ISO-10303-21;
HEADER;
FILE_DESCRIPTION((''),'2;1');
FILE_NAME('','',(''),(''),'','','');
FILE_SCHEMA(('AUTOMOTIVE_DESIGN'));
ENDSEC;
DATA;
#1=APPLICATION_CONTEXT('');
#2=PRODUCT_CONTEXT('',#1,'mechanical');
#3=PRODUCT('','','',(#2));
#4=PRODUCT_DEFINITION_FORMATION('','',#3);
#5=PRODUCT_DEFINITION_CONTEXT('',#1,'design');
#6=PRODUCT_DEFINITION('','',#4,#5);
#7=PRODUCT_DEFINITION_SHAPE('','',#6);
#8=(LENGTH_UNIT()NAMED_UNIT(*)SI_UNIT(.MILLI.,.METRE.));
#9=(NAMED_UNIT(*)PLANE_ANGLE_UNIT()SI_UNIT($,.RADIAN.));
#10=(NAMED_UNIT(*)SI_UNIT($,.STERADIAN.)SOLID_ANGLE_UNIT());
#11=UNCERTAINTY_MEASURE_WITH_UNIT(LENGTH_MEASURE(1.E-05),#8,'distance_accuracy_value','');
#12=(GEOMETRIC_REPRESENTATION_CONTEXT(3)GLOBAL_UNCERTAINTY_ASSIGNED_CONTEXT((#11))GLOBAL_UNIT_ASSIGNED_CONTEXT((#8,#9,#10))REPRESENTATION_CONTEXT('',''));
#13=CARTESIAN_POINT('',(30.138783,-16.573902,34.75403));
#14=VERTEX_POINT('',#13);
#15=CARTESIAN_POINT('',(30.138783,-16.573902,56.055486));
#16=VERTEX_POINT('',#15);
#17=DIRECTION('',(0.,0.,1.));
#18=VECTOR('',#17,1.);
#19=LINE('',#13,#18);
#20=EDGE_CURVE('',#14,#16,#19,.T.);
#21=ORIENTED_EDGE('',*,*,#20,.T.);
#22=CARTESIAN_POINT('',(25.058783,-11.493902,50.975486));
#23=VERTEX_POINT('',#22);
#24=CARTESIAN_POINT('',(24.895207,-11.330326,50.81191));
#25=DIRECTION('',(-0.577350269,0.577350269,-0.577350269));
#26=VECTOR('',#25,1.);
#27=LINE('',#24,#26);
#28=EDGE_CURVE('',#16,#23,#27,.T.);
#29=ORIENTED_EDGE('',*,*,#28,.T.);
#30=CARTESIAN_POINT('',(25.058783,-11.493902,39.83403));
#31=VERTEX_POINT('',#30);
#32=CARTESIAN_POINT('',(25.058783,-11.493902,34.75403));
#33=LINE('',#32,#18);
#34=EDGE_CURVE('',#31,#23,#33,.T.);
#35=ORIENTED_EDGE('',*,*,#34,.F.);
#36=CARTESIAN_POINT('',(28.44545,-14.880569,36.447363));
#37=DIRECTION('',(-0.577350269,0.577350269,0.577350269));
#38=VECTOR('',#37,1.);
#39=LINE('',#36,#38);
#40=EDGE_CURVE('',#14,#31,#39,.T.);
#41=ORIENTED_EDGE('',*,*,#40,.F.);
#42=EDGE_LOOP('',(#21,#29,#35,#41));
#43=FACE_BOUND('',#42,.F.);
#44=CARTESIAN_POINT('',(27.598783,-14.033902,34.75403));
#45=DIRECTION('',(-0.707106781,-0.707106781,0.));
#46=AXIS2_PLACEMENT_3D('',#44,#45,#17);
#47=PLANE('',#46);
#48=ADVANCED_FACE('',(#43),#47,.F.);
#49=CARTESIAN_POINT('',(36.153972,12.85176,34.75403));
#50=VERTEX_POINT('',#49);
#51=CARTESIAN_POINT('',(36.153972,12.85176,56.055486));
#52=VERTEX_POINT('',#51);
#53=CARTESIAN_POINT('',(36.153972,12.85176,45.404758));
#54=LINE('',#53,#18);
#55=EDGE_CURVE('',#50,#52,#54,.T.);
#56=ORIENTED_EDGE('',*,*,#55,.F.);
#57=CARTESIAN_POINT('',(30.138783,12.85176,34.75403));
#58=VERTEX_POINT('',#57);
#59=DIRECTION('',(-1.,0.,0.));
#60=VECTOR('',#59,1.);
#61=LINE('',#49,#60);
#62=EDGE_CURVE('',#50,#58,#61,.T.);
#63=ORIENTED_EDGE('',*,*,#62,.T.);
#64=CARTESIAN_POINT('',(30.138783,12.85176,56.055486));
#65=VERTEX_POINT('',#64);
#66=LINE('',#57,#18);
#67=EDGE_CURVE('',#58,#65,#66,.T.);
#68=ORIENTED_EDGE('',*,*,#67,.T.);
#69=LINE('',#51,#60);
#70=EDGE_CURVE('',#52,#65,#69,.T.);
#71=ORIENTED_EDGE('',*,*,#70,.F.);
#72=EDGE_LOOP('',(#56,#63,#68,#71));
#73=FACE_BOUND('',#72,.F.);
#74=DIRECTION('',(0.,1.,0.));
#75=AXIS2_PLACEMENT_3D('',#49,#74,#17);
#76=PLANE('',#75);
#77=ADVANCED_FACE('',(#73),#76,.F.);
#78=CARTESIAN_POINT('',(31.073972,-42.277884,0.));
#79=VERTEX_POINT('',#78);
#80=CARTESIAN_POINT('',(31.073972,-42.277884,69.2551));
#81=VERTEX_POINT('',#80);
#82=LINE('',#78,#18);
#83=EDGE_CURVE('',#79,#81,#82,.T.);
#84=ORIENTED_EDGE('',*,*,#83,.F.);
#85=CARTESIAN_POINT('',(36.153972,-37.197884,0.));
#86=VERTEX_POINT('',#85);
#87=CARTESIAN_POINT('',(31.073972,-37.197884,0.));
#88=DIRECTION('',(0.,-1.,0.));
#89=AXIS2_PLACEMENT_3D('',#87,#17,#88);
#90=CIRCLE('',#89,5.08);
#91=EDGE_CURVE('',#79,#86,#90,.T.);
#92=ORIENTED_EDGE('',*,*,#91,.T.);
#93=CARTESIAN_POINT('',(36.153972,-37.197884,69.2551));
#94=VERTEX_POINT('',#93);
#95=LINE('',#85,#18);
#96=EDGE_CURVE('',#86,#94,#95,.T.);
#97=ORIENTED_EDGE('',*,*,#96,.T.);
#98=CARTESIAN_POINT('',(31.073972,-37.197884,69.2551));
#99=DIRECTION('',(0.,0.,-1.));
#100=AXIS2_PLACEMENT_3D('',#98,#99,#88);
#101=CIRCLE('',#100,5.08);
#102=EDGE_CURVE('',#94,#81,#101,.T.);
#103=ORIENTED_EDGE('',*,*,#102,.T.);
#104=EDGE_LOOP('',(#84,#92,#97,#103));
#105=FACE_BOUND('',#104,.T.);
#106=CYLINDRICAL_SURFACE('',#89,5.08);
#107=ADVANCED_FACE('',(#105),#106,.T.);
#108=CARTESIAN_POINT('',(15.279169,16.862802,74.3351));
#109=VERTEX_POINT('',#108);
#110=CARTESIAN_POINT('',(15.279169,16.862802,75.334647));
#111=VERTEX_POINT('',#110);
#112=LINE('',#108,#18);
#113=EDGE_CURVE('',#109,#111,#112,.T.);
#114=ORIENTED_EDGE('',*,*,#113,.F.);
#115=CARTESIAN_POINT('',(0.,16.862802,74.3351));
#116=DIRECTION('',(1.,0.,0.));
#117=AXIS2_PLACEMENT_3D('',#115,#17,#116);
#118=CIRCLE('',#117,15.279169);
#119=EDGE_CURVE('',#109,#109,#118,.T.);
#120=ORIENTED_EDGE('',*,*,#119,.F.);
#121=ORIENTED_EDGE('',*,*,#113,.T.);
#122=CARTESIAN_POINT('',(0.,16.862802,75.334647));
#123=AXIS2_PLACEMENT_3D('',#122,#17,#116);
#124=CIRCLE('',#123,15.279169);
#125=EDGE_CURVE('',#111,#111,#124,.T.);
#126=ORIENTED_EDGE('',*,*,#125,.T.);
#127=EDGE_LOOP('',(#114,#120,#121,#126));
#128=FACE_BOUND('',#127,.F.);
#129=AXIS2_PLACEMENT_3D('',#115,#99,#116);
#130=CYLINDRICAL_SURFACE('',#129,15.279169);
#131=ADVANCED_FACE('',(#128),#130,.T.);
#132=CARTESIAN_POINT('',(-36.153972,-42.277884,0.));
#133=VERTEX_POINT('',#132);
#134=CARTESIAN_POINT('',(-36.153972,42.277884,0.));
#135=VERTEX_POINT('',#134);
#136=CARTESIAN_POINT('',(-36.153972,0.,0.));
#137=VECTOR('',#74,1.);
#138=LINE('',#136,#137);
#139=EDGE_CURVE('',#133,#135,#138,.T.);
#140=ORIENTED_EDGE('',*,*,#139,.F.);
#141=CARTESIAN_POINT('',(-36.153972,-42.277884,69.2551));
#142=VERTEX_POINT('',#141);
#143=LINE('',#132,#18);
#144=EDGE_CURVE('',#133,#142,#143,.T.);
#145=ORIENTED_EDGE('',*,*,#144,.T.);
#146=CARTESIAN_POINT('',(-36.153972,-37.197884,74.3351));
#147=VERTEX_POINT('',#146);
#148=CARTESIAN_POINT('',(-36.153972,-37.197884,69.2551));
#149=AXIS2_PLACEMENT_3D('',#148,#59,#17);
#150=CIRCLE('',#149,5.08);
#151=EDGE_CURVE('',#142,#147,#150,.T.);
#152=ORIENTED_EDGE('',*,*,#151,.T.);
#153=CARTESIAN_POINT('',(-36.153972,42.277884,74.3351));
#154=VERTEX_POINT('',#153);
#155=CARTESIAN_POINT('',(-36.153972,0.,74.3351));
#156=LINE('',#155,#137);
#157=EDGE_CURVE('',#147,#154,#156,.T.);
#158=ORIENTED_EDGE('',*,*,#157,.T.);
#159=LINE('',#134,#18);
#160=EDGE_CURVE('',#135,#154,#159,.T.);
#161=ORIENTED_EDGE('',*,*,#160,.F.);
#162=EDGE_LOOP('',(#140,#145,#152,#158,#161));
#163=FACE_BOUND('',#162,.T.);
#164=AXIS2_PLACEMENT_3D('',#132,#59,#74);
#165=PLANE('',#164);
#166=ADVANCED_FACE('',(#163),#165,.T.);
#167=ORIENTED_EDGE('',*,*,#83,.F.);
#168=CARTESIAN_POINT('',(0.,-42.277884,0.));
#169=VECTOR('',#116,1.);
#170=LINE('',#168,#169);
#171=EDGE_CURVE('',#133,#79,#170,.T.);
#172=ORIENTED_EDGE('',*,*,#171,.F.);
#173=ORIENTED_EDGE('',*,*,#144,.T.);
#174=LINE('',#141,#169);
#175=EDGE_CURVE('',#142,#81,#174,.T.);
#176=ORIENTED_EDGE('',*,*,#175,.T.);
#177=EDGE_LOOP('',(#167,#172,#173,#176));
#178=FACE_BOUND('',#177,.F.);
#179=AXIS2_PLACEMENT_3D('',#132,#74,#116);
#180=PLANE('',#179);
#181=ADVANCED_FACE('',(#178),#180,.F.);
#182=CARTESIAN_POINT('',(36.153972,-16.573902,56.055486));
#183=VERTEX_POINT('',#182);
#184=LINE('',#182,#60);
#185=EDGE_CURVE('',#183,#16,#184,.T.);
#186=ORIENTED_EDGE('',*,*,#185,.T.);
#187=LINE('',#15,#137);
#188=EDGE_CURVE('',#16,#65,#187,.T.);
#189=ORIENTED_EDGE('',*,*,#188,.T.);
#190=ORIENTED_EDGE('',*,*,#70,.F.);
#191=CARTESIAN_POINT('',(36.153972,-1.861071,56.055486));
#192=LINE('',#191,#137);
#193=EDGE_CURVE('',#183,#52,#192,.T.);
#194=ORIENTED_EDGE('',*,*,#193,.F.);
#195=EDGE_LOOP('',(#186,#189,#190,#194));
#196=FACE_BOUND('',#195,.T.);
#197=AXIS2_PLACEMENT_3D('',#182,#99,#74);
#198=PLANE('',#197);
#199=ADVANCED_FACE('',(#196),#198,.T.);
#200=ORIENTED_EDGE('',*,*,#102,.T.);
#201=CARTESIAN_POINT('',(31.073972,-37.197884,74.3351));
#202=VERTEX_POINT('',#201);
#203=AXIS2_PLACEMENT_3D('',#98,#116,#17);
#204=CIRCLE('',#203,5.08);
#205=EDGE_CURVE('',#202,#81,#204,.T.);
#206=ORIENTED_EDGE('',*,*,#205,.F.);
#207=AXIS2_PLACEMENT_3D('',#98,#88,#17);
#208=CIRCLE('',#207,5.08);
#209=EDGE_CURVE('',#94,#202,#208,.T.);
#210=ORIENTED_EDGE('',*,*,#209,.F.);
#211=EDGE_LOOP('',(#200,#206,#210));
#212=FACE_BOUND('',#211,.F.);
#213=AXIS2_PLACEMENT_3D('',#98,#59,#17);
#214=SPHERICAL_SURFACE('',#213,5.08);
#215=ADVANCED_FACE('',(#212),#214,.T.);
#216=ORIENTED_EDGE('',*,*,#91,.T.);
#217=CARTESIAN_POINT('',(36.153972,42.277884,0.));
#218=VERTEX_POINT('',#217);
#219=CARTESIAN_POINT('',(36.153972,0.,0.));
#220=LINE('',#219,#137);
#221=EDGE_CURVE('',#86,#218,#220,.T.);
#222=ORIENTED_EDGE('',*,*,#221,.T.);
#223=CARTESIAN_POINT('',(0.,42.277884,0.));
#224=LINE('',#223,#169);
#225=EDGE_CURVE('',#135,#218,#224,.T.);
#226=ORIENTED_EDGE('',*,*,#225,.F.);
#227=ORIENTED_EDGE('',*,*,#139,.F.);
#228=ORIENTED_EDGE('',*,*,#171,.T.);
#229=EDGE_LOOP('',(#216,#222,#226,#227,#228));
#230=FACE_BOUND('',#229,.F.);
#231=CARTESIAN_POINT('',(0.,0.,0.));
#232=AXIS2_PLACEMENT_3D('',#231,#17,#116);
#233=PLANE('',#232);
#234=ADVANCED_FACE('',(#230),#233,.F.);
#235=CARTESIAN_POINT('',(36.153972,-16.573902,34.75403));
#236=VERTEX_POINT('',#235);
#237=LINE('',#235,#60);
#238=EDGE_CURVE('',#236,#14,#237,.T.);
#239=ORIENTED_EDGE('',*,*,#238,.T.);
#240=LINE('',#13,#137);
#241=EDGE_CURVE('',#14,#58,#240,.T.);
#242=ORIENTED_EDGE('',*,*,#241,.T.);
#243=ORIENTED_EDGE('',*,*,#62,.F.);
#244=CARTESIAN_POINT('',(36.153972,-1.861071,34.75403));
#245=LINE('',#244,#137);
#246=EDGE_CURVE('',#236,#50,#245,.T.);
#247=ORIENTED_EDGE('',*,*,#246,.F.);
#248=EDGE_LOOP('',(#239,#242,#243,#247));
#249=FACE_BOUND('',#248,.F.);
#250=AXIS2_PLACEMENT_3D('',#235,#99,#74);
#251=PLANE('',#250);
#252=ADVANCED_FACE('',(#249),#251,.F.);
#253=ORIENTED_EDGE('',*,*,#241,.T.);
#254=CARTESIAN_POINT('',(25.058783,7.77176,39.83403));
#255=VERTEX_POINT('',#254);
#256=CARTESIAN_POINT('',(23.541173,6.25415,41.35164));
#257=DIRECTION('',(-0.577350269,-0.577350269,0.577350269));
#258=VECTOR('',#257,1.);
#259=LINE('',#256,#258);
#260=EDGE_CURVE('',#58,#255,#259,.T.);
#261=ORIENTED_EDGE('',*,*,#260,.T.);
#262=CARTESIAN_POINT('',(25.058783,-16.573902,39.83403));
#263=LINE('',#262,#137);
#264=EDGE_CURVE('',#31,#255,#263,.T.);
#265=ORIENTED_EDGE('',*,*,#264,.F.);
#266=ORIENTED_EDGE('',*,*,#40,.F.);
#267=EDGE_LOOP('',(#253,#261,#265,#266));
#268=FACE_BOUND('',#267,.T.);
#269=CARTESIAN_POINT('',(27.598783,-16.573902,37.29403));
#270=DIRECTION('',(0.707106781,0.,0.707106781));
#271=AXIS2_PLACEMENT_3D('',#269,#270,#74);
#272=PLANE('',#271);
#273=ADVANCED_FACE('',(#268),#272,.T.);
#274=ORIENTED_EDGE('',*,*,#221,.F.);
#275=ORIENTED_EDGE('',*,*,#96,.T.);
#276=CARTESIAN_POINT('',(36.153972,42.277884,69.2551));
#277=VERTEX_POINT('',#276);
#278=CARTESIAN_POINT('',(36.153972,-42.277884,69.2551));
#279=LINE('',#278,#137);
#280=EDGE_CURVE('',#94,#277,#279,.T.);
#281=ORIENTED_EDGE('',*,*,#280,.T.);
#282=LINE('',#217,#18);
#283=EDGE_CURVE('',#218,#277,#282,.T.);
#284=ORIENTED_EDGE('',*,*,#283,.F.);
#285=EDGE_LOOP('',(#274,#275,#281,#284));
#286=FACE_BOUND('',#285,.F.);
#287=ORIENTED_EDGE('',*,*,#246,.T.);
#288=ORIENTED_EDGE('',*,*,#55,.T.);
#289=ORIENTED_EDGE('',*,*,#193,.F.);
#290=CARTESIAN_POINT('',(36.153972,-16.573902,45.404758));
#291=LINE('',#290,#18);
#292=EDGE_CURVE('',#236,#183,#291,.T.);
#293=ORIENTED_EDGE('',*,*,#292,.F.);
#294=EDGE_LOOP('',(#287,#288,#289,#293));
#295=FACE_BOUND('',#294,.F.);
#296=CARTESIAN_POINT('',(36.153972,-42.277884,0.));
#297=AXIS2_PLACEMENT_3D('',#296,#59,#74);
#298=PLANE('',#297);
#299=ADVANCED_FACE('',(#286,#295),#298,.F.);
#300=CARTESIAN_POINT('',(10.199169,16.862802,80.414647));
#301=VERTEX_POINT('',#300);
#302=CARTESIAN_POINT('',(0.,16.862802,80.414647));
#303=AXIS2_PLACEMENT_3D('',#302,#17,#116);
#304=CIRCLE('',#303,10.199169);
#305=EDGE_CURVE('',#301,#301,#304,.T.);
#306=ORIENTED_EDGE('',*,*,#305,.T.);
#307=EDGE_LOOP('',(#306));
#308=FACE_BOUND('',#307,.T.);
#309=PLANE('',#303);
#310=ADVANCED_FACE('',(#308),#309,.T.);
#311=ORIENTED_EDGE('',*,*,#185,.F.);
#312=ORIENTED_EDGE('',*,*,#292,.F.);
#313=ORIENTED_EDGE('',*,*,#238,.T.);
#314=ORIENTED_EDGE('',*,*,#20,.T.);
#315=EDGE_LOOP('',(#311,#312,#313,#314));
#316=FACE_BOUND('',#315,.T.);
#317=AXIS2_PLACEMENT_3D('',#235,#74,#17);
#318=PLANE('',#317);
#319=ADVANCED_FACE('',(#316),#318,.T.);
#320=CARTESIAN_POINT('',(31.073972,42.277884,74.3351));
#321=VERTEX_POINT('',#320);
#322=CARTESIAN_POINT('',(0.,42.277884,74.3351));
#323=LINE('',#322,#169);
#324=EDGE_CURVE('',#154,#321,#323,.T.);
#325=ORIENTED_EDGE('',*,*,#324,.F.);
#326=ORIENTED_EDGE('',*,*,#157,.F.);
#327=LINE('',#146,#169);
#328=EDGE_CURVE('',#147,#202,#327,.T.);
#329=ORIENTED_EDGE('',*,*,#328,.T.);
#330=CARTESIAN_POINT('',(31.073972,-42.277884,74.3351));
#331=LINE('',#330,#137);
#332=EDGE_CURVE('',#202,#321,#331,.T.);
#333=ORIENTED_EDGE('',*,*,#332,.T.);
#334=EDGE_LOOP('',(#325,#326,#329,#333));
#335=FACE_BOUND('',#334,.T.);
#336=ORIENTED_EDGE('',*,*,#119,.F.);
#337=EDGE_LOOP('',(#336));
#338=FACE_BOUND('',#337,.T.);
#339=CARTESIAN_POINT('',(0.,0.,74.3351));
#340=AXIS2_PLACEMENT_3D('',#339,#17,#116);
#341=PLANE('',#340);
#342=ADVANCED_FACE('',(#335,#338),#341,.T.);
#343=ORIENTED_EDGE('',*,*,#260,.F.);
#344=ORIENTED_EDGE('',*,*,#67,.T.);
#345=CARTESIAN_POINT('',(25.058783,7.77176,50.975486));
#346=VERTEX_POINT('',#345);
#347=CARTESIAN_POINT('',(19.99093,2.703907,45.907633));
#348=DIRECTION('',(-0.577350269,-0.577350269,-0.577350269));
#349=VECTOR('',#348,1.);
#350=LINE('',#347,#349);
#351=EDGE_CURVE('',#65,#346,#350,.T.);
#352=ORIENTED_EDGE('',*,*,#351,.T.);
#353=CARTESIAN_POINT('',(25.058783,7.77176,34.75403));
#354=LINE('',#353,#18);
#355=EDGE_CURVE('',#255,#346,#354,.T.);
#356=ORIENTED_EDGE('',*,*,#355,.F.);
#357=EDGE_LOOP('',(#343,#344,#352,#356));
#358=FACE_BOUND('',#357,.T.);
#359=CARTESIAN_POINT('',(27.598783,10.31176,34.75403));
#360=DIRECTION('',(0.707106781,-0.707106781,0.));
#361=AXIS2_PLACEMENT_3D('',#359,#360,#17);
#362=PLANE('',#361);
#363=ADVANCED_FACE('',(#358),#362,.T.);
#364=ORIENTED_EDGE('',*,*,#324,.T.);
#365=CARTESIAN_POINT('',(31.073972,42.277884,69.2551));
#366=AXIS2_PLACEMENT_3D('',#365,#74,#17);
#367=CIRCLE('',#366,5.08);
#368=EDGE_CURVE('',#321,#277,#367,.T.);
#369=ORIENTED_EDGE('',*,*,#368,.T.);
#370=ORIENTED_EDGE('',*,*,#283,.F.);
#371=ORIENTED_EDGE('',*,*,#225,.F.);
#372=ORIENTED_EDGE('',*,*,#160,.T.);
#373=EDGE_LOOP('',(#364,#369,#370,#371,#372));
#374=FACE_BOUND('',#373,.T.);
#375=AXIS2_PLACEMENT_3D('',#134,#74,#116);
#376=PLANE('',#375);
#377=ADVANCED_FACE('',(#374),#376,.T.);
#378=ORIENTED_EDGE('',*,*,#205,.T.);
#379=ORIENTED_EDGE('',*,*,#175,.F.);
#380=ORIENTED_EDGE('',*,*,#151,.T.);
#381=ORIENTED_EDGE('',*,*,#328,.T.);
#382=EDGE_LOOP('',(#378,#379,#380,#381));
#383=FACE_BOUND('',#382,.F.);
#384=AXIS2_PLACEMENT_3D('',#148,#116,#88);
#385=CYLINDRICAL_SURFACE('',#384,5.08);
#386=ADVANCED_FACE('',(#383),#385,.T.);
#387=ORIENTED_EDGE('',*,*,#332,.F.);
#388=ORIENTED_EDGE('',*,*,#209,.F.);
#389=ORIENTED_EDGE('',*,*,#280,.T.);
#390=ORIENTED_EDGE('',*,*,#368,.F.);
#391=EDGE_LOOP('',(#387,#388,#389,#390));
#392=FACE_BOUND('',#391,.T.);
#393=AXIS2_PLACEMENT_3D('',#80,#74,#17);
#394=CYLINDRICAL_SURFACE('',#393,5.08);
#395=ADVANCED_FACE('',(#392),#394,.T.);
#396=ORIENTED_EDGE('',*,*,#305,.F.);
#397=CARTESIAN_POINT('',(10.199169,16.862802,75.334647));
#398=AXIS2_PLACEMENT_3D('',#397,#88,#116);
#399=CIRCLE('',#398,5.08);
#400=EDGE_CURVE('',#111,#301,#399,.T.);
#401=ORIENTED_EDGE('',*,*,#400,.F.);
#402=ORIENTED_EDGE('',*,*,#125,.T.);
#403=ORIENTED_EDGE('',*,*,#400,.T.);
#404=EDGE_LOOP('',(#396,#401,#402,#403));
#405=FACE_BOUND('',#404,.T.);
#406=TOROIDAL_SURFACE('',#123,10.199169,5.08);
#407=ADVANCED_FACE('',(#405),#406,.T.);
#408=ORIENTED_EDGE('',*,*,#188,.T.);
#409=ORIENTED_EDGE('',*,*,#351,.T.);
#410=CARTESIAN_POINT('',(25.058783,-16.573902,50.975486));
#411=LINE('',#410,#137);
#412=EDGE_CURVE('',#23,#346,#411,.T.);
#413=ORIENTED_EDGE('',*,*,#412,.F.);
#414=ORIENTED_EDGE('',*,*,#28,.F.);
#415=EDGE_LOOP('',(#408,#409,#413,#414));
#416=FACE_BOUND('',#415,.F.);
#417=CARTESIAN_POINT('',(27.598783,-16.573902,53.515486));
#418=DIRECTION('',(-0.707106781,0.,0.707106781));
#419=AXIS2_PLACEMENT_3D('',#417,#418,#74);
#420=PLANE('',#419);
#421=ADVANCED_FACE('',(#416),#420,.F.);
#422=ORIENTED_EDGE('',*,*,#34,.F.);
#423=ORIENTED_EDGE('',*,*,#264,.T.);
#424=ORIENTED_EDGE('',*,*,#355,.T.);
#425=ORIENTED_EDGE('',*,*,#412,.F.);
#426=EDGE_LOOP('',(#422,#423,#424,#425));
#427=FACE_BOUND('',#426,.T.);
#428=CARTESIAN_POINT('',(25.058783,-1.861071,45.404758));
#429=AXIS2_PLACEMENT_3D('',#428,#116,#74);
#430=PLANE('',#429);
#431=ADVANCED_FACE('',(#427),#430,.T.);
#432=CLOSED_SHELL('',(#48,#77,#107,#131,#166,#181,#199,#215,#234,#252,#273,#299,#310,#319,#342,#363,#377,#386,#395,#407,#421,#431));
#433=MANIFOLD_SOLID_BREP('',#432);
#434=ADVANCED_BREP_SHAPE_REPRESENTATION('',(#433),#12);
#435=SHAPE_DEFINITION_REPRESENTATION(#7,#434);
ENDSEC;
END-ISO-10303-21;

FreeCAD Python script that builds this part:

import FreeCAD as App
import Part
import Sketcher
Q = App.Units.Quantity


def edges_at(feature, points):
    """Names of the edges that pass closest to the given points."""
    edges = feature.Shape.Edges
    near = lambda p: min(range(len(edges)), key=lambda i: edges[i].distToShape(Part.Vertex(*p))[0])
    return sorted({f"Edge{near(p) + 1}" for p in points})

doc = App.newDocument("Part")
body = doc.addObject("PartDesign::Body", "Body")

sketch1 = body.newObject("Sketcher::SketchObject", "Sketch")
sketch1.AttachmentSupport = (doc.getObject("XY_Plane"), [""])
sketch1.MapMode = "FlatFace"
sketch1.addGeometry([
    Part.LineSegment(App.Vector(-36, 42, 0), App.Vector(-36, -42, 0)),
    Part.LineSegment(App.Vector(-36, -42, 0), App.Vector(36, -42, 0)),
    Part.LineSegment(App.Vector(36, -42, 0), App.Vector(36, 42, 0)),
    Part.LineSegment(App.Vector(36, 42, 0), App.Vector(-36, 42, 0)),
], False)
sketch1.addConstraint([
    Sketcher.Constraint("Coincident", 0, 2, 1, 1),
    Sketcher.Constraint("Coincident", 1, 2, 2, 1),
    Sketcher.Constraint("Coincident", 2, 2, 3, 1),
    Sketcher.Constraint("Coincident", 3, 2, 0, 1),
    Sketcher.Constraint("Vertical", 0),
    Sketcher.Constraint("Horizontal", 1),
    Sketcher.Constraint("Vertical", 2),
    Sketcher.Constraint("Horizontal", 3),
    Sketcher.Constraint("Symmetric", 0, 2, 2, 2, -1, 1),
    Sketcher.Constraint("DistanceY", 0, 2, 0, 1, 84.555768),
    Sketcher.Constraint("DistanceX", 1, 1, 1, 2, 72.307944),
])
pad1 = body.newObject("PartDesign::Pad", "Pad")
pad1.Profile = sketch1
pad1.Length = 74.3351

sketch2 = body.newObject("Sketcher::SketchObject", "Sketch001")
sketch2.AttachmentSupport = (doc.getObject("XY_Plane"), [""])
sketch2.MapMode = "FlatFace"
sketch2.AttachmentOffset = App.Placement(App.Vector(0, 0, 74.3351), App.Rotation())
sketch2.addGeometry(Part.Circle(App.Vector(0, 17, 0), App.Vector(0, 0, 1), 15), False)
sketch2.addConstraint([
    Sketcher.Constraint("PointOnObject", 0, 3, -2),
    Sketcher.Constraint("Diameter", 0, 30.558338),
    Sketcher.Constraint("DistanceY", -1, 1, 0, 3, 16.862802),
])
pad2 = body.newObject("PartDesign::Pad", "Pad001")
pad2.Profile = sketch2
pad2.Length = 6.079547
doc.recompute()

fillet = body.newObject("PartDesign::Fillet", "Fillet")
fillet.Base = (pad2, edges_at(pad2, [
    (-15.279, 16.863, 80.415),
    (0, -42.278, 74.335),
    (36.154, 0, 74.335),
    (36.154, -42.278, 37.168),
]))
fillet.Radius = Q("0.2 in")

sketch3 = body.newObject("Sketcher::SketchObject", "Sketch002")
sketch3.AttachmentSupport = (doc.getObject("YZ_Plane"), [""])
sketch3.MapMode = "FlatFace"
sketch3.AttachmentOffset = App.Placement(App.Vector(0, 0, 36.153972), App.Rotation())
sketch3.addGeometry([
    Part.LineSegment(App.Vector(-17, 56, 0), App.Vector(-17, 35, 0)),
    Part.LineSegment(App.Vector(-17, 35, 0), App.Vector(13, 35, 0)),
    Part.LineSegment(App.Vector(13, 35, 0), App.Vector(13, 56, 0)),
    Part.LineSegment(App.Vector(13, 56, 0), App.Vector(-17, 56, 0)),
], False)
sketch3.addConstraint([
    Sketcher.Constraint("Coincident", 0, 2, 1, 1),
    Sketcher.Constraint("Coincident", 1, 2, 2, 1),
    Sketcher.Constraint("Coincident", 2, 2, 3, 1),
    Sketcher.Constraint("Coincident", 3, 2, 0, 1),
    Sketcher.Constraint("Vertical", 0),
    Sketcher.Constraint("Horizontal", 1),
    Sketcher.Constraint("Vertical", 2),
    Sketcher.Constraint("Horizontal", 3),
    Sketcher.Constraint("DistanceX", 1, 1, 1, 2, 29.425662),
    Sketcher.Constraint("DistanceY", 0, 2, 0, 1, 21.301456),
    Sketcher.Constraint("DistanceY", -1, 1, 0, 2, 34.75403),
    Sketcher.Constraint("DistanceX", -1, 1, 1, 2, 12.85176),
])
pocket1 = body.newObject("PartDesign::Pocket", "Pocket")
pocket1.Profile = sketch3
pocket1.Length = 11.095189
doc.recompute()

chamfer = body.newObject("PartDesign::Chamfer", "Chamfer")
chamfer.Base = (pocket1, edges_at(pocket1, [
    (25.059, -1.861, 56.055),
    (25.059, -16.574, 45.405),
    (25.059, -1.861, 34.754),
    (25.059, 12.852, 45.405),
]))
chamfer.Size = Q("0.2 in")

doc.recompute()
